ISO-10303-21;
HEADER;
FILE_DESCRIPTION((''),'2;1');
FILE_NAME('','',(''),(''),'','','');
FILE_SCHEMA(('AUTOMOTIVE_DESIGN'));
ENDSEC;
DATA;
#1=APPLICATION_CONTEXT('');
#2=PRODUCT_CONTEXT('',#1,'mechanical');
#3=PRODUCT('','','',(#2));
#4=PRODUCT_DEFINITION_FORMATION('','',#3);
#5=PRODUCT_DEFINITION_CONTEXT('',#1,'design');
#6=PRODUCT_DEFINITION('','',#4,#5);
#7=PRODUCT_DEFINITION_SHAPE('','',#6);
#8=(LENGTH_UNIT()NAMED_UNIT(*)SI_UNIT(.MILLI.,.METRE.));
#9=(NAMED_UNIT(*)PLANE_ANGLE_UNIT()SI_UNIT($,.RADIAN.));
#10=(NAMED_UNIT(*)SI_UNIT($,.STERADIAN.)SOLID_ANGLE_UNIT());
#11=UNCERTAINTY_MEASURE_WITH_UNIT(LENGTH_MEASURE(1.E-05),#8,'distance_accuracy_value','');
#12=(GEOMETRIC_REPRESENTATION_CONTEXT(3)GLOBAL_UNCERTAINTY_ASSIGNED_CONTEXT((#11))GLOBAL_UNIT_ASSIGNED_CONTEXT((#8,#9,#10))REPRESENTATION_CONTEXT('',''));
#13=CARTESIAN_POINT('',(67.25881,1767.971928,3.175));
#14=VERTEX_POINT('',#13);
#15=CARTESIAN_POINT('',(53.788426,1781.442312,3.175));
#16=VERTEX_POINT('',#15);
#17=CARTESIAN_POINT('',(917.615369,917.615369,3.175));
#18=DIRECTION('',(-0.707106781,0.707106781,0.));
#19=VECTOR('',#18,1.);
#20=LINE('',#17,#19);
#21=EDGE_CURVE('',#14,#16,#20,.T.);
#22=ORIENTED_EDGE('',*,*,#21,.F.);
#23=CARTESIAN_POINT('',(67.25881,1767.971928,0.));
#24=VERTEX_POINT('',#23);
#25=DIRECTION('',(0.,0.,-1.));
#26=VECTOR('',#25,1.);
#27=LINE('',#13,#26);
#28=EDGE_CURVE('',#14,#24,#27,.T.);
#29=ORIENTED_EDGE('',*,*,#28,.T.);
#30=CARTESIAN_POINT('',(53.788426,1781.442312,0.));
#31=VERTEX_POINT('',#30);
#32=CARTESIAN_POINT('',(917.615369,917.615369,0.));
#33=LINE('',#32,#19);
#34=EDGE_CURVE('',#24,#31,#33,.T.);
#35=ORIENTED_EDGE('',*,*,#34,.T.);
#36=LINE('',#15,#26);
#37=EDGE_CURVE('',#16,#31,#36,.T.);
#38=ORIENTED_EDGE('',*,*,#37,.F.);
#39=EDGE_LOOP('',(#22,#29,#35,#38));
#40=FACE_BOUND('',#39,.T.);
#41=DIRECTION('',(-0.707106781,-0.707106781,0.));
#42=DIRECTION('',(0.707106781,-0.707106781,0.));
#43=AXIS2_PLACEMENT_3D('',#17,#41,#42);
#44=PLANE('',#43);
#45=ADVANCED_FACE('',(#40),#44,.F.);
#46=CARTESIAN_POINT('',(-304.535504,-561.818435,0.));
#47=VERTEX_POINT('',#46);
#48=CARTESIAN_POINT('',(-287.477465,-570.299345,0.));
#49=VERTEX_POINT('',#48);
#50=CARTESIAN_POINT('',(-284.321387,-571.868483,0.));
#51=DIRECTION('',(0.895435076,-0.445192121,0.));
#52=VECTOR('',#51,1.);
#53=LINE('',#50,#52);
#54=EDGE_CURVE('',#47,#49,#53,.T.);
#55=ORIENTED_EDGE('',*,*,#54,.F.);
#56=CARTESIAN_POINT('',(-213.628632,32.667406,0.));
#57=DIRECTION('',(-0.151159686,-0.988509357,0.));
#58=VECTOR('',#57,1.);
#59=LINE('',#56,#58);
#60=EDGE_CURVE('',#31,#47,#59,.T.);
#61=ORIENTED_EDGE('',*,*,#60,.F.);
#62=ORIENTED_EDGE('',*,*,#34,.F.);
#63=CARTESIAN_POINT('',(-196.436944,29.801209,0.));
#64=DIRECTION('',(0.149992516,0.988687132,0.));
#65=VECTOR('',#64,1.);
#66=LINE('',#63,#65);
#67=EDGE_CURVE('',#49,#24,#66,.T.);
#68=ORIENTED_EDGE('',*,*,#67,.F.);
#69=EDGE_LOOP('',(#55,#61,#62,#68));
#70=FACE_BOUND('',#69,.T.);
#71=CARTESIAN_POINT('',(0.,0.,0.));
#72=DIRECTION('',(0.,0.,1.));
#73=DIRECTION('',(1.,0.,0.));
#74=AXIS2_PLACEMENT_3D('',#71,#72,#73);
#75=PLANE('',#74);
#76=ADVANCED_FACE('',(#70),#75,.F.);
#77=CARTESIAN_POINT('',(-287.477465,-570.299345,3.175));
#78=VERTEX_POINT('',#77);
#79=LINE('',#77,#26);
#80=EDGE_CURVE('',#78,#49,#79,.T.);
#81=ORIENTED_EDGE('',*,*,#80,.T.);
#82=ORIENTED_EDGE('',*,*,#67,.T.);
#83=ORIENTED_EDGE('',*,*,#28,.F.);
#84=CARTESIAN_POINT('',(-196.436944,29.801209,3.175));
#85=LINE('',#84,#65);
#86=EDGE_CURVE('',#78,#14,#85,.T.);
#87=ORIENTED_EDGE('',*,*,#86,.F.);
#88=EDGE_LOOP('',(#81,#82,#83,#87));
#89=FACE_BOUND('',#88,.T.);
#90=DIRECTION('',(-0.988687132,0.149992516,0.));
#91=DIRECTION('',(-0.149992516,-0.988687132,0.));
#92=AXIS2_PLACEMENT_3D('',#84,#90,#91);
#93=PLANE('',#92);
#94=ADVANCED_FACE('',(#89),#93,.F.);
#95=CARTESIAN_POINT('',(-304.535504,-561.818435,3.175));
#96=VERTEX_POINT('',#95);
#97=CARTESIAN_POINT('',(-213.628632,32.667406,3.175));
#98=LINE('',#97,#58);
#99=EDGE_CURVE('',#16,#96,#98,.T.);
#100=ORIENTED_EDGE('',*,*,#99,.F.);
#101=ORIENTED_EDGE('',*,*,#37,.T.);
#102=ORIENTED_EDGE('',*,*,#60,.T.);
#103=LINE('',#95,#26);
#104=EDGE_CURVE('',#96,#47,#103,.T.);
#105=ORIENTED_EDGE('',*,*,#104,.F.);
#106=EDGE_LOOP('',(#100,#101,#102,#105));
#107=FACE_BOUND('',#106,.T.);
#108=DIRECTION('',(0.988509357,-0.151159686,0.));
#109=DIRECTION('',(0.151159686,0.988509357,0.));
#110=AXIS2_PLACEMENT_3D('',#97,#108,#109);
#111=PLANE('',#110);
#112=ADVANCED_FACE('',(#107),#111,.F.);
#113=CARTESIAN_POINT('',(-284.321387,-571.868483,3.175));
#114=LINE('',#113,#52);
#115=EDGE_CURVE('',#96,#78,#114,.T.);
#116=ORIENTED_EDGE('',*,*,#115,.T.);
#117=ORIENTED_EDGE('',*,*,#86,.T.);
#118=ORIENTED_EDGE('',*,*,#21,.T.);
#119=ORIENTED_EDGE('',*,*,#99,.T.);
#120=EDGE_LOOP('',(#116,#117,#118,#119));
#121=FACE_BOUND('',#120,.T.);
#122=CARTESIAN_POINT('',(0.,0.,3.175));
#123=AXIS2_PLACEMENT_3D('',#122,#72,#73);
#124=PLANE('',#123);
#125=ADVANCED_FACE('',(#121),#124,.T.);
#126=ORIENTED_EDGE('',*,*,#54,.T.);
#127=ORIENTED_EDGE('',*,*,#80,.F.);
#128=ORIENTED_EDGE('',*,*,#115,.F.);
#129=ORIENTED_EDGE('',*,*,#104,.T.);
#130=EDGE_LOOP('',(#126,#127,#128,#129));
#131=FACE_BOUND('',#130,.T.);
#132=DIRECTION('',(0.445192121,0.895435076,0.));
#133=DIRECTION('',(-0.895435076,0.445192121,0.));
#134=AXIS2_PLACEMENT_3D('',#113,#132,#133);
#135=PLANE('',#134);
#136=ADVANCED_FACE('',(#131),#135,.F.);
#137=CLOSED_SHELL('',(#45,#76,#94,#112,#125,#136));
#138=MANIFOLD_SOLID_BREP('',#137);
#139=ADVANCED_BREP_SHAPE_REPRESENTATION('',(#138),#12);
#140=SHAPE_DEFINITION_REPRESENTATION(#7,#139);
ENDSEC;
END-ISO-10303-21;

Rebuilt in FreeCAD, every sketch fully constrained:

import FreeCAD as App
import Part
import Sketcher

V = App.Vector
Q = App.Units.Quantity

doc = App.newDocument("Part")
body = doc.addObject("PartDesign::Body", "Body")

# Sketch on XY plane
sketch1 = body.newObject("Sketcher::SketchObject", "Sketch")
sketch1.AttachmentSupport = (doc.getObject("XY_Plane"), [""])
sketch1.MapMode = "FlatFace"
sketch1.addGeometry(Part.LineSegment(V(-304.535504, -561.818435, 0), V(-296.006485, -566.05889, 0)), False)
sketch1.addGeometry(Part.LineSegment(V(-296.006485, -566.05889, 0), V(-287.477465, -570.299345, 0)), False)
sketch1.addGeometry(Part.LineSegment(V(-287.477465, -570.299345, 0), V(67.25881, 1767.971928, 0)), False)
sketch1.addGeometry(Part.LineSegment(V(67.25881, 1767.971928, 0), V(60.523618, 1774.70712, 0)), False)
sketch1.addGeometry(Part.LineSegment(V(60.523618, 1774.70712, 0), V(53.788426, 1781.442312, 0)), False)
sketch1.addGeometry(Part.LineSegment(V(53.788426, 1781.442312, 0), V(-304.535504, -561.818435, 0)), False)
sketch1.addConstraint(Sketcher.Constraint("Coincident", 0, 2, 1, 1))
sketch1.addConstraint(Sketcher.Constraint("Coincident", 1, 2, 2, 1))
sketch1.addConstraint(Sketcher.Constraint("Coincident", 2, 2, 3, 1))
sketch1.addConstraint(Sketcher.Constraint("Coincident", 3, 2, 4, 1))
sketch1.addConstraint(Sketcher.Constraint("Coincident", 4, 2, 5, 1))
sketch1.addConstraint(Sketcher.Constraint("Coincident", 5, 2, 0, 1))
sketch1.addConstraint(Sketcher.Constraint("Parallel", 0, 1))
sketch1.addConstraint(Sketcher.Constraint("Parallel", 3, 4))
sketch1.addConstraint(Sketcher.Constraint("Equal", 0, 1))
sketch1.addConstraint(Sketcher.Constraint("Equal", 1, 3))
sketch1.addConstraint(Sketcher.Constraint("Equal", 3, 4))
sketch1.addConstraint(Sketcher.Constraint("Angle", 3, Q("135 deg")))
sketch1.addConstraint(Sketcher.Constraint("Distance", 0, Q("0.375 in")))
sketch1.addConstraint(Sketcher.Constraint("DistanceY", 0, 2, -1, 1, Q("566.05889 mm")))
sketch1.addConstraint(Sketcher.Constraint("DistanceX", -1, 1, 2, 2, Q("67.25881 mm")))
sketch1.addConstraint(Sketcher.Constraint("DistanceY", -1, 1, 3, 2, Q("1774.70712 mm")))
sketch1.addConstraint(Sketcher.Constraint("DistanceX", 0, 2, 1, 2, Q("8.529019 mm")))
sketch1.addConstraint(Sketcher.Constraint("DistanceX", 0, 2, 4, 2, Q("349.794911 mm")))
pad1 = body.newObject("PartDesign::Pad", "Pad")
pad1.Profile = sketch1
pad1.Length = Q("0.125 in")

doc.recompute()
